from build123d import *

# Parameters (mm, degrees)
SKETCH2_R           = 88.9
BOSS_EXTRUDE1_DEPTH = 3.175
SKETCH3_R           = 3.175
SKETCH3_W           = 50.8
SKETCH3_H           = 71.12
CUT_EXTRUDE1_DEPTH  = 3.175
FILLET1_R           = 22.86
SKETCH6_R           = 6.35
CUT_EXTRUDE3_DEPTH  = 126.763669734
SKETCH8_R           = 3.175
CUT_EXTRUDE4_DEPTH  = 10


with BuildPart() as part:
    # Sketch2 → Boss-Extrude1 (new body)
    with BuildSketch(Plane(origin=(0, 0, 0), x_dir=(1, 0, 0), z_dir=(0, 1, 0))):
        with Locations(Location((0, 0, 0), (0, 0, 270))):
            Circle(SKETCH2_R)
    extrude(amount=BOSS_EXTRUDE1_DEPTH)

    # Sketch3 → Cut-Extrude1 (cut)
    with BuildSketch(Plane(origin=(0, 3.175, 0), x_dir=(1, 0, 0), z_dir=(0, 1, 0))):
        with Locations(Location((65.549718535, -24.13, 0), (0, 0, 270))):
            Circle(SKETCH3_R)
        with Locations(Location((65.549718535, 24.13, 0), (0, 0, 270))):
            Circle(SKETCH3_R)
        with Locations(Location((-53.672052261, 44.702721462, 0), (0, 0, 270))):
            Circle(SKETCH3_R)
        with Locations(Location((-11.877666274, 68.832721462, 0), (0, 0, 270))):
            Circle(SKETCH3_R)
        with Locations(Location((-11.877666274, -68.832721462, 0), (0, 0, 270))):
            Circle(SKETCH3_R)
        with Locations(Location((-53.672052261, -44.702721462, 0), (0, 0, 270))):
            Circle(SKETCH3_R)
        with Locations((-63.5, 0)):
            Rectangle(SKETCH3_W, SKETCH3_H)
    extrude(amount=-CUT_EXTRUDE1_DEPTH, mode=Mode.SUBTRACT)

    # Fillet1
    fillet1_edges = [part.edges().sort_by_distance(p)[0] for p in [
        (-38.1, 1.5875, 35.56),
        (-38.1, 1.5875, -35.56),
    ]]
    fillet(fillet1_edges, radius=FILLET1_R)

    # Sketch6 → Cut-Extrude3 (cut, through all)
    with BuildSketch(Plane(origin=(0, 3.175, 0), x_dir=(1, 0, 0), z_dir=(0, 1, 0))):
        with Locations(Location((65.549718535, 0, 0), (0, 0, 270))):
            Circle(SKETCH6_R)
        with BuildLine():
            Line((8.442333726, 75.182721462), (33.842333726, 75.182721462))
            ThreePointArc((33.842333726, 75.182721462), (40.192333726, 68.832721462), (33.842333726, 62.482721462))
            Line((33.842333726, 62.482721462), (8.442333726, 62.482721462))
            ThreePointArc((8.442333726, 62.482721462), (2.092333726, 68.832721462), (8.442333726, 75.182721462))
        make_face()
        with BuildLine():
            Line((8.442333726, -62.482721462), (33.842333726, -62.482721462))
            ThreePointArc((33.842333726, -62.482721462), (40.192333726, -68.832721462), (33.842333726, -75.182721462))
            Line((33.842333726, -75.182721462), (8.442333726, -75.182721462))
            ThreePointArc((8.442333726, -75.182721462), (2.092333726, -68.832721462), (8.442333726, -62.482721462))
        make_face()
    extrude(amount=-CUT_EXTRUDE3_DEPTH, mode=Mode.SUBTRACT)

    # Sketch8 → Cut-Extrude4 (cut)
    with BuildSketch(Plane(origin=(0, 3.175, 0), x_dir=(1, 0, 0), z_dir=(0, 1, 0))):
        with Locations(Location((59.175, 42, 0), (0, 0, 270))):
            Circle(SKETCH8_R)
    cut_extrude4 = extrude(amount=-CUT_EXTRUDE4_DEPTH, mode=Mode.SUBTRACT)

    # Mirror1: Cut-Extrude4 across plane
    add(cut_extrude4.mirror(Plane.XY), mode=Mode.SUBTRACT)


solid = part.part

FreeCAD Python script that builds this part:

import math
import FreeCAD as App
import Part
import Sketcher
from FreeCAD import Vector
Q = App.Units.Quantity


def edges_at(feature, points):
    """Names of the edges that pass closest to the given points."""
    edges = feature.Shape.Edges
    near = lambda p: min(range(len(edges)), key=lambda i: edges[i].distToShape(Part.Vertex(*p))[0])
    return sorted({f"Edge{near(p) + 1}" for p in points})

doc = App.newDocument("Part")
body = doc.addObject("PartDesign::Body", "Body")

sketch1 = body.newObject("Sketcher::SketchObject", "Sketch")
sketch1.AttachmentSupport = (doc.getObject("XZ_Plane"), [""])
sketch1.MapMode = "FlatFace"
sketch1.addGeometry(Part.Circle(Vector(0, 0, 0), Vector(0, 0, 1), 89), False)
sketch1.addConstraint(Sketcher.Constraint("Coincident", 0, 3, -1, 1))
sketch1.addConstraint(Sketcher.Constraint("Diameter", 0, Q("7 in")))
pad1 = body.newObject("PartDesign::Pad", "Pad")
pad1.Profile = sketch1
pad1.Length = Q("0.125 in")
pad1.Reversed = True

sketch2 = body.newObject("Sketcher::SketchObject", "Sketch001")
sketch2.AttachmentSupport = (doc.getObject("XZ_Plane"), [""])
sketch2.MapMode = "FlatFace"
sketch2.AttachmentOffset = App.Placement(Vector(0, 0, -0.125 * 25.4), App.Rotation())
sketch2.addGeometry(Part.Circle(Vector(65.5, 24.1, 0), Vector(0, 0, 1), 3.2), False)
sketch2.addGeometry(Part.Circle(Vector(65.5, -24.1, 0), Vector(0, 0, 1), 3.2), False)
sketch2.addGeometry(Part.Circle(Vector(-53.7, -44.7, 0), Vector(0, 0, 1), 3.2), False)
sketch2.addGeometry(Part.Circle(Vector(-11.9, -68.8, 0), Vector(0, 0, 1), 3.2), False)
sketch2.addGeometry(Part.Circle(Vector(-11.9, 68.8, 0), Vector(0, 0, 1), 3.2), False)
sketch2.addGeometry(Part.Circle(Vector(-53.7, 44.7, 0), Vector(0, 0, 1), 3.2), False)
sketch2.addGeometry(Part.LineSegment(Vector(-88.9, -35.6, 0), Vector(-88.9, 35.6, 0)), False)
sketch2.addGeometry(Part.LineSegment(Vector(-88.9, 35.6, 0), Vector(-38.1, 35.6, 0)), False)
sketch2.addGeometry(Part.LineSegment(Vector(-38.1, 35.6, 0), Vector(-38.1, -35.6, 0)), False)
sketch2.addGeometry(Part.LineSegment(Vector(-38.1, -35.6, 0), Vector(-88.9, -35.6, 0)), False)
sketch2.addConstraint(Sketcher.Constraint("Coincident", 6, 2, 7, 1))
sketch2.addConstraint(Sketcher.Constraint("Coincident", 7, 2, 8, 1))
sketch2.addConstraint(Sketcher.Constraint("Coincident", 8, 2, 9, 1))
sketch2.addConstraint(Sketcher.Constraint("Coincident", 9, 2, 6, 1))
sketch2.addConstraint(Sketcher.Constraint("Vertical", 6))
sketch2.addConstraint(Sketcher.Constraint("Horizontal", 7))
sketch2.addConstraint(Sketcher.Constraint("Vertical", 8))
sketch2.addConstraint(Sketcher.Constraint("Horizontal", 9))
sketch2.addConstraint(Sketcher.Constraint("Equal", 0, 1))
sketch2.addConstraint(Sketcher.Constraint("Equal", 1, 2))
sketch2.addConstraint(Sketcher.Constraint("Equal", 2, 3))
sketch2.addConstraint(Sketcher.Constraint("Equal", 3, 4))
sketch2.addConstraint(Sketcher.Constraint("Equal", 4, 5))
sketch2.addConstraint(Sketcher.Constraint("Symmetric", 0, 3, 1, 3, -1))
sketch2.addConstraint(Sketcher.Constraint("Symmetric", 3, 3, 4, 3, -1))
sketch2.addConstraint(Sketcher.Constraint("Symmetric", 2, 3, 5, 3, -1))
sketch2.addConstraint(Sketcher.Constraint("Diameter", 0, Q("0.25 in")))
sketch2.addConstraint(Sketcher.Constraint("DistanceX", 7, 1, 7, 2, Q("2 in")))
sketch2.addConstraint(Sketcher.Constraint("DistanceY", 6, 1, 6, 2, Q("2.8 in")))
sketch2.addConstraint(Sketcher.Constraint("DistanceX", 6, 2, -1, 1, Q("3.5 in")))
sketch2.addConstraint(Sketcher.Constraint("DistanceY", -1, 1, 6, 2, Q("1.4 in")))
sketch2.addConstraint(Sketcher.Constraint("DistanceY", 1, 3, 0, 3, Q("1.9 in")))
sketch2.addConstraint(Sketcher.Constraint("DistanceY", 3, 3, 2, 3, Q("0.95 in")))
sketch2.addConstraint(Sketcher.Constraint("DistanceX", -1, 1, 0, 3, Q("65.549719 mm")))
sketch2.addConstraint(Sketcher.Constraint("DistanceY", 2, 3, -1, 1, Q("44.702721 mm")))
sketch2.addConstraint(Sketcher.Constraint("DistanceX", 2, 3, 1, 3, Q("119.221771 mm")))
sketch2.addConstraint(Sketcher.Constraint("DistanceX", 3, 3, -1, 1, Q("11.877666 mm")))
pocket1 = body.newObject("PartDesign::Pocket", "Pocket")
pocket1.Profile = sketch2
pocket1.Length = Q("0.125 in")
pocket1.Reversed = True
doc.recompute()

fillet = body.newObject("PartDesign::Fillet", "Fillet")
fillet.Base = (pocket1, edges_at(pocket1, [(-38.1, 1.587, 35.56), (-38.1, 1.587, -35.56)]))
fillet.Radius = Q("0.9 in")

sketch3 = body.newObject("Sketcher::SketchObject", "Sketch002")
sketch3.AttachmentSupport = (doc.getObject("XZ_Plane"), [""])
sketch3.MapMode = "FlatFace"
sketch3.AttachmentOffset = App.Placement(Vector(0, 0, -0.125 * 25.4), App.Rotation())
sketch3.addGeometry(Part.Circle(Vector(66, 0, 0), Vector(0, 0, 1), 6), False)
sketch3.addGeometry(Part.LineSegment(Vector(34, -75, 0), Vector(8, -75, 0)), False)
sketch3.addGeometry(Part.ArcOfCircle(Part.Circle(Vector(8, -69, 0), Vector(0, 0, 1), 6), math.radians(90), math.radians(270)), False)
sketch3.addGeometry(Part.LineSegment(Vector(8, -62, 0), Vector(34, -62, 0)), False)
sketch3.addGeometry(Part.ArcOfCircle(Part.Circle(Vector(34, -69, 0), Vector(0, 0, 1), 6), math.radians(-90), math.radians(90)), False)
sketch3.addGeometry(Part.LineSegment(Vector(34, 62, 0), Vector(8, 62, 0)), False)
sketch3.addGeometry(Part.ArcOfCircle(Part.Circle(Vector(8, 69, 0), Vector(0, 0, 1), 6), math.radians(90), math.radians(270)), False)
sketch3.addGeometry(Part.LineSegment(Vector(8, 75, 0), Vector(34, 75, 0)), False)
sketch3.addGeometry(Part.ArcOfCircle(Part.Circle(Vector(34, 69, 0), Vector(0, 0, 1), 6), math.radians(-90), math.radians(90)), False)
sketch3.addConstraint(Sketcher.Constraint("Tangent", 1, 2, 2, 2))
sketch3.addConstraint(Sketcher.Constraint("Tangent", 2, 1, 3, 1))
sketch3.addConstraint(Sketcher.Constraint("Tangent", 3, 2, 4, 2))
sketch3.addConstraint(Sketcher.Constraint("Tangent", 4, 1, 1, 1))
sketch3.addConstraint(Sketcher.Constraint("Tangent", 5, 2, 6, 2))
sketch3.addConstraint(Sketcher.Constraint("Tangent", 6, 1, 7, 1))
sketch3.addConstraint(Sketcher.Constraint("Tangent", 7, 2, 8, 2))
sketch3.addConstraint(Sketcher.Constraint("Tangent", 8, 1, 5, 1))
sketch3.addConstraint(Sketcher.Constraint("Horizontal", 1))
sketch3.addConstraint(Sketcher.Constraint("Horizontal", 3))
sketch3.addConstraint(Sketcher.Constraint("Horizontal", 5))
sketch3.addConstraint(Sketcher.Constraint("Horizontal", 7))
sketch3.addConstraint(Sketcher.Constraint("Equal", 0, 2))
sketch3.addConstraint(Sketcher.Constraint("Equal", 4, 6))
sketch3.addConstraint(Sketcher.Constraint("Symmetric", 2, 3, 6, 3, -1))
sketch3.addConstraint(Sketcher.Constraint("PointOnObject", 0, 3, -1))
sketch3.addConstraint(Sketcher.Constraint("Vertical", 4, 3, 8, 3))
sketch3.addConstraint(Sketcher.Constraint("Diameter", 0, Q("0.5 in")))
sketch3.addConstraint(Sketcher.Constraint("DistanceX", 1, 2, 1, 1, Q("1 in")))
sketch3.addConstraint(Sketcher.Constraint("DistanceX", -1, 1, 0, 3, Q("65.549719 mm")))
sketch3.addConstraint(Sketcher.Constraint("DistanceY", 2, 3, -1, 1, Q("68.832721 mm")))
sketch3.addConstraint(Sketcher.Constraint("DistanceX", -1, 1, 2, 3, Q("8.442334 mm")))
pocket2 = body.newObject("PartDesign::Pocket", "Pocket001")
pocket2.Profile = sketch3
pocket2.Type = "ThroughAll"
pocket2.Reversed = True

sketch4 = body.newObject("Sketcher::SketchObject", "Sketch003")
sketch4.AttachmentSupport = (doc.getObject("XZ_Plane"), [""])
sketch4.MapMode = "FlatFace"
sketch4.AttachmentOffset = App.Placement(Vector(0, 0, -0.125 * 25.4), App.Rotation())
sketch4.addGeometry(Part.Circle(Vector(59.2, -42, 0), Vector(0, 0, 1), 3.2), False)
sketch4.addConstraint(Sketcher.Constraint("Diameter", 0, Q("0.25 in")))
sketch4.addConstraint(Sketcher.Constraint("DistanceX", -1, 1, 0, 3, Q("59.175 mm")))
sketch4.addConstraint(Sketcher.Constraint("DistanceY", 0, 3, -1, 1, Q("42 mm")))
pocket3 = body.newObject("PartDesign::Pocket", "Pocket002")
pocket3.Profile = sketch4
pocket3.Length = 10
pocket3.Reversed = True
doc.recompute()

mirrored = body.newObject("PartDesign::Mirrored", "Mirrored")
mirrored.Originals = [pocket3]
mirrored.MirrorPlane = (doc.getObject("XY_Plane"), [""])
body.Tip = mirrored

doc.recompute()
